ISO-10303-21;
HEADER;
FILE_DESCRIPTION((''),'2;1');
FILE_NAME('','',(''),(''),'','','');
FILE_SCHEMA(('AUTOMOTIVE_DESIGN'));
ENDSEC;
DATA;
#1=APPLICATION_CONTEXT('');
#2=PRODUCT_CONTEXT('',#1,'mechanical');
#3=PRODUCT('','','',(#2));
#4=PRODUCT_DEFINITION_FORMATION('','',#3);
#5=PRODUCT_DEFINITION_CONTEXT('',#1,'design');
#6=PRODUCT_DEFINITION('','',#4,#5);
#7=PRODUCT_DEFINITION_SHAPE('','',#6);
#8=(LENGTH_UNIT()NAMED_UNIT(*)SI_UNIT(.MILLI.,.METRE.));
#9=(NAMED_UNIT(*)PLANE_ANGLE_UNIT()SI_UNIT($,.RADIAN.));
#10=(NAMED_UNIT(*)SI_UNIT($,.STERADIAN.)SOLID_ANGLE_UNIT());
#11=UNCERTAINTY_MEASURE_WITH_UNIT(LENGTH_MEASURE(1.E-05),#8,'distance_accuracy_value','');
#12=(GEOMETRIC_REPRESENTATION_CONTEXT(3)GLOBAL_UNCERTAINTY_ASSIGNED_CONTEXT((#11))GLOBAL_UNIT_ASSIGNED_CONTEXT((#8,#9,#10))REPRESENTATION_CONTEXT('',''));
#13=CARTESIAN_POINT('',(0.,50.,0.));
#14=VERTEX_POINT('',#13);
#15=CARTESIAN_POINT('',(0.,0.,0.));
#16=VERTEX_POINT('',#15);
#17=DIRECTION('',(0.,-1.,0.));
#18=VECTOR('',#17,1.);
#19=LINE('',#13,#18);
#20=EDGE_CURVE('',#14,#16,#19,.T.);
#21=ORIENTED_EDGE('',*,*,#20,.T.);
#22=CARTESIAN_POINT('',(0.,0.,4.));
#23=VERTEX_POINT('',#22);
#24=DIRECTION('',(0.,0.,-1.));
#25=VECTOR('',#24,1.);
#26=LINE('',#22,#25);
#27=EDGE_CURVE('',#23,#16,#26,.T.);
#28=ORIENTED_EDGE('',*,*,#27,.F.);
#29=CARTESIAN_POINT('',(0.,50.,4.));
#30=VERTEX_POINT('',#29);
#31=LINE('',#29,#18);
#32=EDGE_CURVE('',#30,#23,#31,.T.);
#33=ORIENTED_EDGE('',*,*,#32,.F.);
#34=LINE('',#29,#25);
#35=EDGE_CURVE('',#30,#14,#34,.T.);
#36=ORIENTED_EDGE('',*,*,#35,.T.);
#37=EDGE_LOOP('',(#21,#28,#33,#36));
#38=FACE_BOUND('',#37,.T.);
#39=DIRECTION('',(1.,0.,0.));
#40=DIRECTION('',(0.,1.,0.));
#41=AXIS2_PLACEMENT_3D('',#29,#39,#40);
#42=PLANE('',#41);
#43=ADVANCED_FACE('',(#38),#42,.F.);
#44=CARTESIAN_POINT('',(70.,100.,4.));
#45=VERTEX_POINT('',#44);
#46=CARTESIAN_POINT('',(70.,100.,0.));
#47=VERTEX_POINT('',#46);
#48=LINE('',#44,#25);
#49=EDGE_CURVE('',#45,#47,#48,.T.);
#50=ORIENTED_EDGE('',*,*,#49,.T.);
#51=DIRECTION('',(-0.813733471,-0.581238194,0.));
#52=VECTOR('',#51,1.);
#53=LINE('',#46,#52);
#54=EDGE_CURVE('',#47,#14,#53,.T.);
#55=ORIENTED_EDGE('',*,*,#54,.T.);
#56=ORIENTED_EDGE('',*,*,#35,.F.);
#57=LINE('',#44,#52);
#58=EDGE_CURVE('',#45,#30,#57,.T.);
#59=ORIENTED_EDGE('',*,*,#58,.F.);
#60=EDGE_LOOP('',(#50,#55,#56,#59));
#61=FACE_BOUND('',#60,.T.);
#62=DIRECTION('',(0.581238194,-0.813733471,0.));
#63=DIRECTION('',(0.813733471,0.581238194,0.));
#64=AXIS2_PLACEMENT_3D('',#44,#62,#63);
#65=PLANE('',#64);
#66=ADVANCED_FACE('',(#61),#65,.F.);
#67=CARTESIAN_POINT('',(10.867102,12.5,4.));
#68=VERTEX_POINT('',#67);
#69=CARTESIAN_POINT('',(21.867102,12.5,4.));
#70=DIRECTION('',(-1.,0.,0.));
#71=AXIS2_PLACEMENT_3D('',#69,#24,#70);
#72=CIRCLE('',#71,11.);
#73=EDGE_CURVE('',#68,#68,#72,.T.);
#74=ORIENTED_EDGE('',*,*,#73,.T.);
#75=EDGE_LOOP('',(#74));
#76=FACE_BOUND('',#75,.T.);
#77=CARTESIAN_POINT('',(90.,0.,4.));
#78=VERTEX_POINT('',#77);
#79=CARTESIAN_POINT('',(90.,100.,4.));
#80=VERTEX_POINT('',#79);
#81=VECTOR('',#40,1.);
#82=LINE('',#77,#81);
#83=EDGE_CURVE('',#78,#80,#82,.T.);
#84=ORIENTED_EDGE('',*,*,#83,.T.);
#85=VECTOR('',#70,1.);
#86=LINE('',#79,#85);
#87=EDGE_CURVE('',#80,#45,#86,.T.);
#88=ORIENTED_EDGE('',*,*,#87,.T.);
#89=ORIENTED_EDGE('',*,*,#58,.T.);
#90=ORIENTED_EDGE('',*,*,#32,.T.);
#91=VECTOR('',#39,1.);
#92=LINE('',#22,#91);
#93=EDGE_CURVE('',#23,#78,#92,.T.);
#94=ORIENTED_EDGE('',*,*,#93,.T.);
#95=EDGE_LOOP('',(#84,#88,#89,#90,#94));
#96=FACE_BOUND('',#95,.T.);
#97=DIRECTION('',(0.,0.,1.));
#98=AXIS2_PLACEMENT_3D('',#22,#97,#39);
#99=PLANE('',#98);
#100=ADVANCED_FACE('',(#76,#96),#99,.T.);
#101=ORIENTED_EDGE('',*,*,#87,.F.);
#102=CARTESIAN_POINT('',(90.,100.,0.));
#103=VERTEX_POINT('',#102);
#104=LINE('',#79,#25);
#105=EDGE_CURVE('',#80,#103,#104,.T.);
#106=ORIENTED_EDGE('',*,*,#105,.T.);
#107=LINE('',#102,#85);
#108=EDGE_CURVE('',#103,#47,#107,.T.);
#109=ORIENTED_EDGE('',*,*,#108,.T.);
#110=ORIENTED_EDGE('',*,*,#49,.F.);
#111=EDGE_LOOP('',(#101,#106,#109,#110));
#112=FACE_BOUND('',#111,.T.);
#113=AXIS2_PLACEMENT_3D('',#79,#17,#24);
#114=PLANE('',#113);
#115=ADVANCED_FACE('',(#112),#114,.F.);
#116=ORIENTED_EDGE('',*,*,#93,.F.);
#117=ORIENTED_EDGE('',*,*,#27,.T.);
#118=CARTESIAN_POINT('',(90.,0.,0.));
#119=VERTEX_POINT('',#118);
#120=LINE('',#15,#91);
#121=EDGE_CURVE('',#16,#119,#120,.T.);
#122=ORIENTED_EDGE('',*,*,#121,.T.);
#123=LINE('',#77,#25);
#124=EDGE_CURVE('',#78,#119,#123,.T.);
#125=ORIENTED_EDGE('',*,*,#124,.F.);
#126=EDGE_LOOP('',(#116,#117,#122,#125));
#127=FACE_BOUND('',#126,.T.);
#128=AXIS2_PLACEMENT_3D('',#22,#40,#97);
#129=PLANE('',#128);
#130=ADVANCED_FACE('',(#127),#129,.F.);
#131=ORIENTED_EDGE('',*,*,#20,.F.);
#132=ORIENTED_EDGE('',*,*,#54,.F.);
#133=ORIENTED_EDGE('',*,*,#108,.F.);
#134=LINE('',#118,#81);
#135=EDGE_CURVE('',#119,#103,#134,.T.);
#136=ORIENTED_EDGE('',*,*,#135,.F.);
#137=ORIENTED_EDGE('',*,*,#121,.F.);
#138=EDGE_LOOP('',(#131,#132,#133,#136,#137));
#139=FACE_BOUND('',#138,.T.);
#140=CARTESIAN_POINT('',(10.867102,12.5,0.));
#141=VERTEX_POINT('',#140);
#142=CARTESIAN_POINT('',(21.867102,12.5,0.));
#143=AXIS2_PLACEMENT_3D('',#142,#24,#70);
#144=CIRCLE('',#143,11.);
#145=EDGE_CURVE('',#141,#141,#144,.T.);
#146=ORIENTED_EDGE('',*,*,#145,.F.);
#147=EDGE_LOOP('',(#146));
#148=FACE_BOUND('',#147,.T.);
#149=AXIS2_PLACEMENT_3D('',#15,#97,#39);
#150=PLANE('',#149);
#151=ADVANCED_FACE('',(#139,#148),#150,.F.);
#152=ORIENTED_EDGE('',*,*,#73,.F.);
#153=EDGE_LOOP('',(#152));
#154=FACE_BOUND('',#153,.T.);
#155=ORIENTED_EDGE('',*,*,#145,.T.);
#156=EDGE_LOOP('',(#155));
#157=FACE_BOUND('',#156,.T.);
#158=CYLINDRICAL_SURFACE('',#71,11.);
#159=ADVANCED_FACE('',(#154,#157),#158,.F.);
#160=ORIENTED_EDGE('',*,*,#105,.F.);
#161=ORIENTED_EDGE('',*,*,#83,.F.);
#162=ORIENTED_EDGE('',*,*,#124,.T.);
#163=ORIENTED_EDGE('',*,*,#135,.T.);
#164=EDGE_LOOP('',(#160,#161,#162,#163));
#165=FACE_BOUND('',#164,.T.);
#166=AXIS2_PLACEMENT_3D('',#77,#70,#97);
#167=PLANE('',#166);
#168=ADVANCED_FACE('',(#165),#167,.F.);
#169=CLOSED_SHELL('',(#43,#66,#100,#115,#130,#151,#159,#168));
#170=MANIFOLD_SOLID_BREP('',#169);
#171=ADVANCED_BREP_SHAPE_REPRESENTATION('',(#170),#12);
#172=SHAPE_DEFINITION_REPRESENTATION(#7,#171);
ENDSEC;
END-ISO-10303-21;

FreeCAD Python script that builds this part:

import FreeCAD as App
import Part
import Sketcher


def add_polygon(sketch, points):
    """Adds a closed chain of lines whose ends are joined by coincident constraints."""
    first, n = sketch.GeometryCount, len(points)
    for a, b in zip(points, points[1:] + points[:1]):
        sketch.addGeometry(Part.LineSegment(App.Vector(*a, 0), App.Vector(*b, 0)), False)
    for i in range(n):
        sketch.addConstraint(Sketcher.Constraint("Coincident", first + i, 2, first + (i + 1) % n, 1))

doc = App.newDocument("Part")
body = doc.addObject("PartDesign::Body", "Body")

sketch1 = body.newObject("Sketcher::SketchObject", "Sketch")
sketch1.AttachmentSupport = (doc.getObject("XY_Plane"), [""])
sketch1.MapMode = "FlatFace"
add_polygon(sketch1, [(0, 0), (90, 0), (90, 100), (70, 100), (0, 50)])
sketch1.addConstraint(Sketcher.Constraint("Horizontal", 0))
sketch1.addConstraint(Sketcher.Constraint("Vertical", 1))
sketch1.addConstraint(Sketcher.Constraint("Horizontal", 2))
sketch1.addConstraint(Sketcher.Constraint("Vertical", 4))
sketch1.addConstraint(Sketcher.Constraint("Coincident", 4, 2, -1, 1))
sketch1.addConstraint(Sketcher.Constraint("DistanceX", 0, 1, 0, 2, 90.0))
sketch1.addConstraint(Sketcher.Constraint("DistanceX", 2, 2, 2, 1, 20.0))
sketch1.addConstraint(Sketcher.Constraint("DistanceY", 1, 1, 1, 2, 100.0))
sketch1.addConstraint(Sketcher.Constraint("DistanceY", 4, 2, 4, 1, 50.0))
pad1 = body.newObject("PartDesign::Pad", "Pad")
pad1.Profile = sketch1
pad1.Length = 4

sketch2 = body.newObject("Sketcher::SketchObject", "Sketch001")
sketch2.AttachmentSupport = (doc.getObject("XY_Plane"), [""])
sketch2.MapMode = "FlatFace"
sketch2.addGeometry(Part.Circle(App.Vector(21.867102, 12.5, 0), App.Vector(0, 0, 1), 11), False)
sketch2.addConstraint(Sketcher.Constraint("Diameter", 0, 22.0))
sketch2.addConstraint(Sketcher.Constraint("DistanceY", -1, 1, 0, 3, 12.5))
sketch2.addConstraint(Sketcher.Constraint("DistanceX", -1, 1, 0, 3, 21.867102))
pocket1 = body.newObject("PartDesign::Pocket", "Pocket")
pocket1.Profile = sketch2
pocket1.Type = "ThroughAll"
pocket1.Reversed = True

doc.recompute()
